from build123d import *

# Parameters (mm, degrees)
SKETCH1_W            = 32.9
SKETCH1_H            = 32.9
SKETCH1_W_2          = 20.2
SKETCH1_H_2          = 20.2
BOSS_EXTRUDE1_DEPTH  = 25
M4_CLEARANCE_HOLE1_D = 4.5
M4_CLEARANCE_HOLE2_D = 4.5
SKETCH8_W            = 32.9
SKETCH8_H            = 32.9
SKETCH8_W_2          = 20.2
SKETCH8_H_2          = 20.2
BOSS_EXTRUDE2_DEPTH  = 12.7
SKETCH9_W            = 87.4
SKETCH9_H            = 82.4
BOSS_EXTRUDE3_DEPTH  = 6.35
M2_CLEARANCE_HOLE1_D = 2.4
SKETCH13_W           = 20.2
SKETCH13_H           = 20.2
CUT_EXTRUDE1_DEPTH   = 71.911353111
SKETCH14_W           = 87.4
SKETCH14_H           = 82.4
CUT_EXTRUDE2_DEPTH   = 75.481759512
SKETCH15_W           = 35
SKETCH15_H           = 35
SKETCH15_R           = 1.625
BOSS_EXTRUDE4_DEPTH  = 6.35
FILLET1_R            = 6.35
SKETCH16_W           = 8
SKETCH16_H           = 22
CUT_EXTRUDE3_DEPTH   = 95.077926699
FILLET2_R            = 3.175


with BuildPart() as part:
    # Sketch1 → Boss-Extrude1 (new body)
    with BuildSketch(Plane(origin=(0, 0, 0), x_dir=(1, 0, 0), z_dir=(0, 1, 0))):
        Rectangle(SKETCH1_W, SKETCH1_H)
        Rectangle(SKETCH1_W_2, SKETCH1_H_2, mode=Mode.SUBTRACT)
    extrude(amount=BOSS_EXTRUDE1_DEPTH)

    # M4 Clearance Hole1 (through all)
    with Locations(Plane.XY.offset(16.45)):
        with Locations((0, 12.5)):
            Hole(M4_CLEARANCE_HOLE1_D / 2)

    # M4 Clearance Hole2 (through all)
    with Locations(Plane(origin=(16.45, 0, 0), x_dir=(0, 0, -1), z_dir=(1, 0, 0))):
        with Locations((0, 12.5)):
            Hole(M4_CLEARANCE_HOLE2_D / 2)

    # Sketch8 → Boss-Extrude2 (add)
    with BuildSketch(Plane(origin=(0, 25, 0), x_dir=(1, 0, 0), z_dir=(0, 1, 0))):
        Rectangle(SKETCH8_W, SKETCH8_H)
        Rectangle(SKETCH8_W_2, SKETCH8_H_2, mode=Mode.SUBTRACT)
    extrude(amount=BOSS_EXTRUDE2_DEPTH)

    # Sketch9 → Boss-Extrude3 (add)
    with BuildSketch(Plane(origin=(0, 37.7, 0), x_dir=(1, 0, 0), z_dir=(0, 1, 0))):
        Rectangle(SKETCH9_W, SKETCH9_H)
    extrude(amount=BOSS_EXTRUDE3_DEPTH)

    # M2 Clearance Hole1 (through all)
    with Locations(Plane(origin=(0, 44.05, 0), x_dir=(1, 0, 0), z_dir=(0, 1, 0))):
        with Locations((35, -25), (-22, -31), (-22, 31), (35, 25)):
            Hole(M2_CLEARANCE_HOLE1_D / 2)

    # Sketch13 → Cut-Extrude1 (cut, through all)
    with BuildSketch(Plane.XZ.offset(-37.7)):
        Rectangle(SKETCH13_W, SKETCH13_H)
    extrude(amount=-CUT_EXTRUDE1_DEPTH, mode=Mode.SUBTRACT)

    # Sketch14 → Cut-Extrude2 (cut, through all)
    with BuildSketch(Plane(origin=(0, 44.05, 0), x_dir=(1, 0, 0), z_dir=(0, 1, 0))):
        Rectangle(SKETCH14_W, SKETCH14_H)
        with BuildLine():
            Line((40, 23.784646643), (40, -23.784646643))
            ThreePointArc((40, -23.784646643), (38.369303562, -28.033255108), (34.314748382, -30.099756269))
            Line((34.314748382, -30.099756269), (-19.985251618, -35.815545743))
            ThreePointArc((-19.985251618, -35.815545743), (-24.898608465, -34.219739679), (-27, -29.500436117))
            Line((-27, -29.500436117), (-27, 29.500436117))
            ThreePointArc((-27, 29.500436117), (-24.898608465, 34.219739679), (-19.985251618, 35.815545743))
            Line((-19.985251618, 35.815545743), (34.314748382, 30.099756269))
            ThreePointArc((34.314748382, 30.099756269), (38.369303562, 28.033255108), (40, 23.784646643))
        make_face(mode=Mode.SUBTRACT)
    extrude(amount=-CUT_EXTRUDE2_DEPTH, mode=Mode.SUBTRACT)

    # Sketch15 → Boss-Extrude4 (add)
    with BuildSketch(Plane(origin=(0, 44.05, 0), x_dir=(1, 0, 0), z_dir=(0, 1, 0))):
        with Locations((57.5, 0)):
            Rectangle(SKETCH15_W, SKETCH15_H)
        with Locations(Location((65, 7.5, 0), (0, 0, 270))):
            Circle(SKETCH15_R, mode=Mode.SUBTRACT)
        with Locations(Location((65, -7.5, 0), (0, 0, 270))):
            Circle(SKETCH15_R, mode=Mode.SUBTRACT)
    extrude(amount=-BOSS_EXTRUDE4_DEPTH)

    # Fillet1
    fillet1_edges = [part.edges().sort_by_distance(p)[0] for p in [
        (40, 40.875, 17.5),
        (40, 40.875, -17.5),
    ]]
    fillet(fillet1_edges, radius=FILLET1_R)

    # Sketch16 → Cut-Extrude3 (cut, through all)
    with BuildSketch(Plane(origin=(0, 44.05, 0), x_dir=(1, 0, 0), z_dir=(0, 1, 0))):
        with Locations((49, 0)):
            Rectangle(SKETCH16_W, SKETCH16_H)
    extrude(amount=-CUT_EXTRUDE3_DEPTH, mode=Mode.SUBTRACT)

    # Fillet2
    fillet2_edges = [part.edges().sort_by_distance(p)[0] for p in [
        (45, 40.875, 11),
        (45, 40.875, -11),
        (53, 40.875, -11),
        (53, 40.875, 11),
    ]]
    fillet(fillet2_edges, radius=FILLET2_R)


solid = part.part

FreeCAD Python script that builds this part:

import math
import FreeCAD as App
import Part
import Sketcher
from FreeCAD import Vector
Q = App.Units.Quantity


def edges_at(feature, points):
    """Names of the edges that pass closest to the given points."""
    edges = feature.Shape.Edges
    near = lambda p: min(range(len(edges)), key=lambda i: edges[i].distToShape(Part.Vertex(*p))[0])
    return sorted({f"Edge{near(p) + 1}" for p in points})


def add_polygon(sketch, points):
    """Adds a closed chain of lines whose ends are joined by coincident constraints."""
    first, n = sketch.GeometryCount, len(points)
    for a, b in zip(points, points[1:] + points[:1]):
        sketch.addGeometry(Part.LineSegment(App.Vector(*a, 0), App.Vector(*b, 0)), False)
    for i in range(n):
        sketch.addConstraint(Sketcher.Constraint("Coincident", first + i, 2, first + (i + 1) % n, 1))

doc = App.newDocument("Part")
body = doc.addObject("PartDesign::Body", "Body")

# Sketch on XZ plane
sketch1 = body.newObject("Sketcher::SketchObject", "Sketch")
sketch1.AttachmentSupport = (doc.getObject("XZ_Plane"), [""])
sketch1.MapMode = "FlatFace"
add_polygon(sketch1, [(-16, -16), (-16, 16), (16, 16), (16, -16)])  # lines 0-3
add_polygon(sketch1, [(10, 10), (-10, 10), (-10, -10), (10, -10)])  # lines 4-7
sketch1.addConstraint([
    Sketcher.Constraint("Vertical", 0),
    Sketcher.Constraint("Horizontal", 1),
    Sketcher.Constraint("Vertical", 2),
    Sketcher.Constraint("Horizontal", 3),
    Sketcher.Constraint("Horizontal", 4),
    Sketcher.Constraint("Vertical", 5),
    Sketcher.Constraint("Horizontal", 6),
    Sketcher.Constraint("Vertical", 7),
    Sketcher.Constraint("Symmetric", 0, 2, 2, 2, -1, 1),
    Sketcher.Constraint("Symmetric", 4, 2, 6, 2, -1, 1),
    Sketcher.Constraint("Equal", 3, 0),
    Sketcher.Constraint("Equal", 6, 5),
    Sketcher.Constraint("DistanceX", 1, 1, 1, 2, Q("32.9 mm")),
    Sketcher.Constraint("DistanceX", 4, 2, 4, 1, Q("20.2 mm")),
])
pad1 = body.newObject("PartDesign::Pad", "Pad")
pad1.Profile = sketch1
pad1.Length = 25
pad1.Reversed = True

# Sketch on XY plane
sketch2 = body.newObject("Sketcher::SketchObject", "Sketch001")
sketch2.AttachmentSupport = (doc.getObject("XY_Plane"), [""])
sketch2.MapMode = "FlatFace"
sketch2.AttachmentOffset = App.Placement(Vector(0, 0, 16.45), App.Rotation())
sketch2.addGeometry(Part.Circle(Vector(0, 12.5, 0), Vector(0, 0, 1), 2.2), False)
sketch2.addConstraint([
    Sketcher.Constraint("PointOnObject", 0, 3, -2),
    Sketcher.Constraint("Diameter", 0, Q("4.5 mm")),
    Sketcher.Constraint("DistanceY", -1, 1, 0, 3, Q("12.5 mm")),
])
doc.recompute()
hole = body.newObject("PartDesign::Hole", "Hole")
hole.Profile = sketch2
hole.ThreadType = "None"
hole.Diameter = 4.5
hole.DepthType = "ThroughAll"

# Sketch on YZ plane
sketch3 = body.newObject("Sketcher::SketchObject", "Sketch002")
sketch3.AttachmentSupport = (doc.getObject("YZ_Plane"), [""])
sketch3.MapMode = "FlatFace"
sketch3.AttachmentOffset = App.Placement(Vector(0, 0, 16.45), App.Rotation())
sketch3.addGeometry(Part.Circle(Vector(12.5, 0, 0), Vector(0, 0, 1), 2.2), False)
sketch3.addConstraint([
    Sketcher.Constraint("PointOnObject", 0, 3, -1),
    Sketcher.Constraint("Diameter", 0, Q("4.5 mm")),
    Sketcher.Constraint("DistanceX", -1, 1, 0, 3, Q("12.5 mm")),
])
doc.recompute()
hole2 = body.newObject("PartDesign::Hole", "Hole001")
hole2.Profile = sketch3
hole2.ThreadType = "None"
hole2.Diameter = 4.5
hole2.DepthType = "ThroughAll"

# Sketch on XZ plane
sketch4 = body.newObject("Sketcher::SketchObject", "Sketch003")
sketch4.AttachmentSupport = (doc.getObject("XZ_Plane"), [""])
sketch4.MapMode = "FlatFace"
sketch4.AttachmentOffset = App.Placement(Vector(0, 0, -25), App.Rotation())
add_polygon(sketch4, [(-16, -16), (-16, 16), (16, 16), (16, -16)])  # lines 0-3
add_polygon(sketch4, [(10, 10), (-10, 10), (-10, -10), (10, -10)])  # lines 4-7
sketch4.addConstraint([
    Sketcher.Constraint("Vertical", 0),
    Sketcher.Constraint("Horizontal", 1),
    Sketcher.Constraint("Vertical", 2),
    Sketcher.Constraint("Horizontal", 3),
    Sketcher.Constraint("Horizontal", 4),
    Sketcher.Constraint("Vertical", 5),
    Sketcher.Constraint("Horizontal", 6),
    Sketcher.Constraint("Vertical", 7),
    Sketcher.Constraint("Symmetric", 0, 2, 2, 2, -1, 1),
    Sketcher.Constraint("Symmetric", 4, 2, 6, 2, -1, 1),
    Sketcher.Constraint("Equal", 3, 0),
    Sketcher.Constraint("Equal", 6, 5),
    Sketcher.Constraint("DistanceX", 1, 1, 1, 2, Q("32.9 mm")),
    Sketcher.Constraint("DistanceX", 4, 2, 4, 1, Q("20.2 mm")),
])
pad2 = body.newObject("PartDesign::Pad", "Pad001")
pad2.Profile = sketch4
pad2.Length = 12.7
pad2.Reversed = True

# Sketch on XZ plane
sketch5 = body.newObject("Sketcher::SketchObject", "Sketch004")
sketch5.AttachmentSupport = (doc.getObject("XZ_Plane"), [""])
sketch5.MapMode = "FlatFace"
sketch5.AttachmentOffset = App.Placement(Vector(0, 0, -37.7), App.Rotation())
add_polygon(sketch5, [(-44, -41), (-44, 41), (44, 41), (44, -41)])  # lines 0-3
sketch5.addConstraint([
    Sketcher.Constraint("Vertical", 0),
    Sketcher.Constraint("Horizontal", 1),
    Sketcher.Constraint("Vertical", 2),
    Sketcher.Constraint("Horizontal", 3),
    Sketcher.Constraint("Symmetric", 0, 2, 2, 2, -1, 1),
    Sketcher.Constraint("DistanceX", 1, 1, 1, 2, Q("87.4 mm")),
    Sketcher.Constraint("DistanceY", 0, 1, 0, 2, Q("82.4 mm")),
])
pad3 = body.newObject("PartDesign::Pad", "Pad002")
pad3.Profile = sketch5
pad3.Length = 6.35
pad3.Reversed = True

# Sketch on XZ plane
sketch6 = body.newObject("Sketcher::SketchObject", "Sketch005")
sketch6.AttachmentSupport = (doc.getObject("XZ_Plane"), [""])
sketch6.MapMode = "FlatFace"
sketch6.AttachmentOffset = App.Placement(Vector(0, 0, -44.05), App.Rotation())
sketch6.addGeometry([
    Part.Circle(Vector(35, 25, 0), Vector(0, 0, 1), 1.2),
    Part.Circle(Vector(-22, 31, 0), Vector(0, 0, 1), 1.2),
    Part.Circle(Vector(-22, -31, 0), Vector(0, 0, 1), 1.2),
    Part.Circle(Vector(35, -25, 0), Vector(0, 0, 1), 1.2),
], False)
sketch6.addConstraint([
    Sketcher.Constraint("Equal", 0, 1),
    Sketcher.Constraint("Equal", 1, 2),
    Sketcher.Constraint("Equal", 2, 3),
    Sketcher.Constraint("Symmetric", 1, 3, 2, 3, -1),
    Sketcher.Constraint("Symmetric", 0, 3, 3, 3, -1),
    Sketcher.Constraint("Diameter", 0, Q("2.4 mm")),
    Sketcher.Constraint("DistanceX", -1, 1, 0, 3, Q("35 mm")),
    Sketcher.Constraint("DistanceY", -1, 1, 0, 3, Q("25 mm")),
    Sketcher.Constraint("DistanceX", 1, 3, -1, 1, Q("22 mm")),
    Sketcher.Constraint("DistanceY", -1, 1, 1, 3, Q("31 mm")),
])
doc.recompute()
hole3 = body.newObject("PartDesign::Hole", "Hole002")
hole3.Profile = sketch6
hole3.ThreadType = "None"
hole3.Diameter = 2.4
hole3.DepthType = "ThroughAll"
hole3.Reversed = True

# Sketch on XZ plane
sketch7 = body.newObject("Sketcher::SketchObject", "Sketch006")
sketch7.AttachmentSupport = (doc.getObject("XZ_Plane"), [""])
sketch7.MapMode = "FlatFace"
sketch7.AttachmentOffset = App.Placement(Vector(0, 0, -37.7), App.Rotation())
add_polygon(sketch7, [(-10, 10), (-10, -10), (10, -10), (10, 10)])  # lines 0-3
sketch7.addConstraint([
    Sketcher.Constraint("Vertical", 0),
    Sketcher.Constraint("Horizontal", 1),
    Sketcher.Constraint("Vertical", 2),
    Sketcher.Constraint("Horizontal", 3),
    Sketcher.Constraint("Symmetric", 0, 2, 2, 2, -1, 1),
    Sketcher.Constraint("Equal", 3, 0),
    Sketcher.Constraint("DistanceX", 1, 1, 1, 2, Q("20.2 mm")),
])
pocket1 = body.newObject("PartDesign::Pocket", "Pocket")
pocket1.Profile = sketch7
pocket1.Type = "ThroughAll"

# Sketch on XZ plane
sketch8 = body.newObject("Sketcher::SketchObject", "Sketch007")
sketch8.AttachmentSupport = (doc.getObject("XZ_Plane"), [""])
sketch8.MapMode = "FlatFace"
sketch8.AttachmentOffset = App.Placement(Vector(0, 0, -44.05), App.Rotation())
add_polygon(sketch8, [(-44, -41), (-44, 41), (44, 41), (44, -41)])  # lines 0-3
sketch8.addGeometry(Part.ArcOfCircle(Part.Circle(Vector(34, -24, 0), Vector(0, 0, 1), 6), math.radians(-84), math.radians(0)), False)  # 4
sketch8.addGeometry(Part.LineSegment(Vector(40, -24, 0), Vector(40, 24, 0)), False)  # 5
sketch8.addGeometry(Part.ArcOfCircle(Part.Circle(Vector(34, 24, 0), Vector(0, 0, 1), 6), math.radians(0), math.radians(84)), False)  # 6
sketch8.addGeometry(Part.LineSegment(Vector(34, 30, 0), Vector(-20, 36, 0)), False)  # 7
sketch8.addGeometry(Part.ArcOfCircle(Part.Circle(Vector(-21, 30, 0), Vector(0, 0, 1), 6), math.radians(84), math.radians(180)), False)  # 8
sketch8.addGeometry(Part.LineSegment(Vector(-27, 30, 0), Vector(-27, -30, 0)), False)  # 9
sketch8.addGeometry(Part.ArcOfCircle(Part.Circle(Vector(-21, -30, 0), Vector(0, 0, 1), 6), math.radians(180), math.radians(276)), False)  # 10
sketch8.addGeometry(Part.LineSegment(Vector(-20, -36, 0), Vector(34, -30, 0)), False)  # 11
sketch8.addConstraint([
    Sketcher.Constraint("Tangent", 4, 2, 5, 1),
    Sketcher.Constraint("Tangent", 5, 2, 6, 1),
    Sketcher.Constraint("Tangent", 6, 2, 7, 1),
    Sketcher.Constraint("Tangent", 7, 2, 8, 1),
    Sketcher.Constraint("Tangent", 8, 2, 9, 1),
    Sketcher.Constraint("Tangent", 9, 2, 10, 1),
    Sketcher.Constraint("Tangent", 10, 2, 11, 1),
    Sketcher.Constraint("Tangent", 11, 2, 4, 1),
    Sketcher.Constraint("Vertical", 0),
    Sketcher.Constraint("Horizontal", 1),
    Sketcher.Constraint("Vertical", 2),
    Sketcher.Constraint("Horizontal", 3),
    Sketcher.Constraint("Vertical", 5),
    Sketcher.Constraint("Vertical", 9),
    Sketcher.Constraint("Equal", 4, 6),
    Sketcher.Constraint("Equal", 6, 8),
    Sketcher.Constraint("Equal", 8, 10),
    Sketcher.Constraint("Symmetric", 0, 2, 2, 2, -1, 1),
    Sketcher.Constraint("Symmetric", 7, 2, 10, 2, -1),
    Sketcher.Constraint("Radius", 4, Q("6.35 mm")),
    Sketcher.Constraint("DistanceX", 1, 1, 1, 2, Q("87.4 mm")),
    Sketcher.Constraint("DistanceY", 0, 1, 0, 2, Q("82.4 mm")),
    Sketcher.Constraint("DistanceX", -1, 1, 4, 2, Q("40 mm")),
    Sketcher.Constraint("DistanceX", 8, 2, -1, 1, Q("27 mm")),
    Sketcher.Constraint("DistanceY", 6, 3, 7, 2, Q("12.030899 mm")),
    Sketcher.Constraint("DistanceY", 5, 1, 5, 2, Q("47.569293 mm")),
])
pocket2 = body.newObject("PartDesign::Pocket", "Pocket001")
pocket2.Profile = sketch8
pocket2.Type = "ThroughAll"
pocket2.Reversed = True

# Sketch on XZ plane
sketch9 = body.newObject("Sketcher::SketchObject", "Sketch008")
sketch9.AttachmentSupport = (doc.getObject("XZ_Plane"), [""])
sketch9.MapMode = "FlatFace"
sketch9.AttachmentOffset = App.Placement(Vector(0, 0, -44.05), App.Rotation())
add_polygon(sketch9, [(40, -17.5), (40, 17.5), (75, 17.5), (75, -17.5)])  # lines 0-3
sketch9.addGeometry(Part.Circle(Vector(65, 7.5, 0), Vector(0, 0, 1), 1.6), False)  # 4
sketch9.addGeometry(Part.Circle(Vector(65, -7.5, 0), Vector(0, 0, 1), 1.6), False)  # 5
sketch9.addConstraint([
    Sketcher.Constraint("Vertical", 0),
    Sketcher.Constraint("Horizontal", 1),
    Sketcher.Constraint("Vertical", 2),
    Sketcher.Constraint("Horizontal", 3),
    Sketcher.Constraint("Equal", 4, 5),
    Sketcher.Constraint("Symmetric", 4, 3, 5, 3, -1),
    Sketcher.Constraint("Equal", 3, 0),
    Sketcher.Constraint("Diameter", 4, Q("3.25 mm")),
    Sketcher.Constraint("DistanceX", 1, 1, 1, 2, Q("35 mm")),
    Sketcher.Constraint("DistanceX", -1, 1, 4, 3, Q("65 mm")),
    Sketcher.Constraint("DistanceX", -1, 1, 0, 2, Q("40 mm")),
    Sketcher.Constraint("DistanceY", 5, 3, 4, 3, Q("15 mm")),
    Sketcher.Constraint("DistanceY", 4, 3, 0, 2, Q("10 mm")),
])
pad4 = body.newObject("PartDesign::Pad", "Pad003")
pad4.Profile = sketch9
pad4.Length = 6.35
doc.recompute()

fillet = body.newObject("PartDesign::Fillet", "Fillet")
fillet.Base = (pad4, edges_at(pad4, [(40, 40.875, 17.5), (40, 40.875, -17.5)]))
fillet.Radius = 6.35

# Sketch on XZ plane
sketch10 = body.newObject("Sketcher::SketchObject", "Sketch009")
sketch10.AttachmentSupport = (doc.getObject("XZ_Plane"), [""])
sketch10.MapMode = "FlatFace"
sketch10.AttachmentOffset = App.Placement(Vector(0, 0, -44.05), App.Rotation())
add_polygon(sketch10, [(45, -11), (45, 11), (53, 11), (53, -11)])  # lines 0-3
sketch10.addConstraint([
    Sketcher.Constraint("Vertical", 0),
    Sketcher.Constraint("Horizontal", 1),
    Sketcher.Constraint("Vertical", 2),
    Sketcher.Constraint("Horizontal", 3),
    Sketcher.Constraint("DistanceX", 1, 1, 1, 2, Q("8 mm")),
    Sketcher.Constraint("DistanceY", 0, 1, 0, 2, Q("22 mm")),
    Sketcher.Constraint("DistanceX", -1, 1, 0, 2, Q("45 mm")),
    Sketcher.Constraint("DistanceY", -1, 1, 0, 2, Q("11 mm")),
])
pocket3 = body.newObject("PartDesign::Pocket", "Pocket002")
pocket3.Profile = sketch10
pocket3.Type = "ThroughAll"
pocket3.Reversed = True
doc.recompute()

fillet2 = body.newObject("PartDesign::Fillet", "Fillet001")
fillet2.Base = (pocket3, edges_at(pocket3, [
    (45, 40.875, 11),
    (45, 40.875, -11),
    (53, 40.875, -11),
    (53, 40.875, 11),
]))
fillet2.Radius = 3.175

doc.recompute()
